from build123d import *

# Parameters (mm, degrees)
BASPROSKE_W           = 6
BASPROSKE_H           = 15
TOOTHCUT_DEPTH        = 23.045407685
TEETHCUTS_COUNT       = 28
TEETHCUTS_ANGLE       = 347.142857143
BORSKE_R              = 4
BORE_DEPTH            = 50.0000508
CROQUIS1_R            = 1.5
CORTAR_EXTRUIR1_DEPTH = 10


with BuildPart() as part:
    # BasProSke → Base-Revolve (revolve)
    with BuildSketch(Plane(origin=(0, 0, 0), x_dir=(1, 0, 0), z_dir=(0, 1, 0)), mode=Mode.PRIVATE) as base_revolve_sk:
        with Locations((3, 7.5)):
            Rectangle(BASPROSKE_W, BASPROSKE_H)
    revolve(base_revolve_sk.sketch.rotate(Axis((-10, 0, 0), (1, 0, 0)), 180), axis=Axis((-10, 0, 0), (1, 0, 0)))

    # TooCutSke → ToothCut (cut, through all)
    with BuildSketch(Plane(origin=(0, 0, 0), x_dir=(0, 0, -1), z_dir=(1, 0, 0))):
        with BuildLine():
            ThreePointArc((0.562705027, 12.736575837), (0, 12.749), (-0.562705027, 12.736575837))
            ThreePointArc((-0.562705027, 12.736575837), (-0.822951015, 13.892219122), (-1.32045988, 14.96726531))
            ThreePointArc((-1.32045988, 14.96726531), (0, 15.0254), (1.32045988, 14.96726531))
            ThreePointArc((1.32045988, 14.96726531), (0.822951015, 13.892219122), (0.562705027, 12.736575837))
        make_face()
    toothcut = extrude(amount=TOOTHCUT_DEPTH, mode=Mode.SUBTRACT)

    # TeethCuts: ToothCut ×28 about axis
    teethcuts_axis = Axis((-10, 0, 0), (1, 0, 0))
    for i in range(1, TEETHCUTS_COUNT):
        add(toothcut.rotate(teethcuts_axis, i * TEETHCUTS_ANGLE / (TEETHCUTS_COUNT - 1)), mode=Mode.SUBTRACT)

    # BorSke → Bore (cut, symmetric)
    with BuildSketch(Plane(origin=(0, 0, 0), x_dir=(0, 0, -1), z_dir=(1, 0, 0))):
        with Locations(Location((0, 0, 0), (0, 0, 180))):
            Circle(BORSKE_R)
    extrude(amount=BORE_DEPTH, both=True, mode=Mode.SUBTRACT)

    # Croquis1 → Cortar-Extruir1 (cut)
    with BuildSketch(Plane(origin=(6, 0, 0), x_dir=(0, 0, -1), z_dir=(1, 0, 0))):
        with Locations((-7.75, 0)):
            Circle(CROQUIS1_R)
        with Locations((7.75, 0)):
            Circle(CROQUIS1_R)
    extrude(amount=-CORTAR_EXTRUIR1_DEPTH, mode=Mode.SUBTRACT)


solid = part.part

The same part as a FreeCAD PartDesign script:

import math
import FreeCAD as App
import Part
import Sketcher

V = App.Vector
Q = App.Units.Quantity


def add_polygon(sketch, points):
    """Adds a closed chain of lines whose ends are joined by coincident constraints."""
    first, n = sketch.GeometryCount, len(points)
    for a, b in zip(points, points[1:] + points[:1]):
        sketch.addGeometry(Part.LineSegment(App.Vector(*a, 0), App.Vector(*b, 0)), False)
    for i in range(n):
        sketch.addConstraint(Sketcher.Constraint("Coincident", first + i, 2, first + (i + 1) % n, 1))

doc = App.newDocument("Part")
params = doc.addObject("Spreadsheet::Sheet", "Params")
for row, (alias, value) in enumerate([
    ("sketch1_width", "6 mm"),
    ("sketch1_height", "15 mm"),
    ("revolution_angle", "360 deg"),
    ("sketch2_radius", "5.6 mm"),
    ("sketch3_diameter", "8 mm"),
    ("pocket2_length", "100.000102 mm"),
    ("sketch4_diameter", "3 mm"),
    ("pocket3_length", "10 mm"),
], start=1):
    params.set(f"A{row}", alias)
    params.set(f"B{row}", "=" + value)
    params.setAlias(f"B{row}", alias)

body = doc.addObject("PartDesign::Body", "Body")

sketch1 = body.newObject("Sketcher::SketchObject", "Sketch")
sketch1.AttachmentSupport = (doc.getObject("XZ_Plane"), [""])
sketch1.MapMode = "FlatFace"
add_polygon(sketch1, [(0, -15), (0, 0), (6, 0), (6, -15)])
sketch1.addConstraint([
    Sketcher.Constraint("Vertical", 0),
    Sketcher.Constraint("Horizontal", 1),
    Sketcher.Constraint("Vertical", 2),
    Sketcher.Constraint("Horizontal", 3),
    Sketcher.Constraint("Coincident", 0, 2, -1, 1),
    Sketcher.Constraint("DistanceX", 1, 1, 1, 2, Q("6 mm")),
    Sketcher.Constraint("DistanceY", 0, 1, 0, 2, Q("15 mm")),
])
sketch1.setExpression("Constraints[9]", "Params.sketch1_width")
sketch1.setExpression("Constraints[10]", "Params.sketch1_height")
revolution = body.newObject("PartDesign::Revolution", "Revolution")
revolution.Profile = sketch1
revolution.ReferenceAxis = (sketch1, ["H_Axis"])
revolution.setExpression("Angle", "Params.revolution_angle")

sketch2 = body.newObject("Sketcher::SketchObject", "Sketch001")
sketch2.AttachmentSupport = (doc.getObject("YZ_Plane"), [""])
sketch2.MapMode = "FlatFace"
sketch2.addGeometry([
    Part.ArcOfCircle(Part.Circle(V(0, 0, 0), V(0, 0, 1), 12.7), math.radians(-2.53), math.radians(2.53)),
    Part.ArcOfCircle(Part.Circle(V(12.1, -6.1, 0), V(0, 0, 1), 5.6), math.radians(59), math.radians(83)),
    Part.ArcOfCircle(Part.Circle(V(0, 0, 0), V(0, 0, 1), 15), math.radians(-5.04), math.radians(5.04)),
    Part.ArcOfCircle(Part.Circle(V(12.1, 6.1, 0), V(0, 0, 1), 5.6), math.radians(-83), math.radians(-59)),
], False)
sketch2.addConstraint([
    Sketcher.Constraint("Coincident", 0, 1, 1, 2),
    Sketcher.Constraint("Coincident", 1, 1, 2, 1),
    Sketcher.Constraint("Coincident", 2, 2, 3, 2),
    Sketcher.Constraint("Coincident", 3, 1, 0, 2),
    Sketcher.Constraint("Coincident", 0, 3, -1, 1),
    Sketcher.Constraint("Coincident", 2, 3, -1, 1),
    Sketcher.Constraint("Equal", 1, 3),
    Sketcher.Constraint("Symmetric", 1, 3, 3, 3, -1),
    Sketcher.Constraint("Radius", 1, Q("5.6 mm")),
    Sketcher.Constraint("Radius", 0, Q("12.749 mm")),
    Sketcher.Constraint("Radius", 2, Q("15.0254 mm")),
    Sketcher.Constraint("DistanceX", -1, 1, 1, 3, Q("12.091012 mm")),
    Sketcher.Constraint("DistanceY", 1, 3, -1, 1, Q("6.12537 mm")),
])
sketch2.setExpression("Constraints[8]", "Params.sketch2_radius")
pocket1 = body.newObject("PartDesign::Pocket", "Pocket")
pocket1.Profile = sketch2
pocket1.Type = "ThroughAll"
pocket1.Reversed = True
doc.recompute()

polarpattern = body.newObject("PartDesign::PolarPattern", "PolarPattern")
polarpattern.Originals = [pocket1]
polarpattern.Axis = (doc.getObject("X_Axis"), [""])
polarpattern.Angle = 360
polarpattern.Occurrences = 28
body.Tip = polarpattern

sketch3 = body.newObject("Sketcher::SketchObject", "Sketch002")
sketch3.AttachmentSupport = (doc.getObject("YZ_Plane"), [""])
sketch3.MapMode = "FlatFace"
sketch3.addGeometry(Part.Circle(V(0, 0, 0), V(0, 0, 1), 4), False)
sketch3.addConstraint([
    Sketcher.Constraint("Coincident", 0, 3, -1, 1),
    Sketcher.Constraint("Diameter", 0, Q("8 mm")),
])
sketch3.setExpression("Constraints[1]", "Params.sketch3_diameter")
pocket2 = body.newObject("PartDesign::Pocket", "Pocket001")
pocket2.Profile = sketch3
pocket2.setExpression("Length", "Params.pocket2_length")
pocket2.Midplane = True

sketch4 = body.newObject("Sketcher::SketchObject", "Sketch003")
sketch4.AttachmentSupport = (doc.getObject("YZ_Plane"), [""])
sketch4.MapMode = "FlatFace"
sketch4.AttachmentOffset = App.Placement(V(0, 0, 6), App.Rotation())
sketch4.addGeometry([
    Part.Circle(V(0, 7.8, 0), V(0, 0, 1), 1.5),
    Part.Circle(V(0, -7.8, 0), V(0, 0, 1), 1.5),
], False)
sketch4.addConstraint([
    Sketcher.Constraint("Equal", 0, 1),
    Sketcher.Constraint("Symmetric", 0, 3, 1, 3, -1, 1),
    Sketcher.Constraint("PointOnObject", 0, 3, -2),
    Sketcher.Constraint("Diameter", 0, Q("3 mm")),
    Sketcher.Constraint("DistanceY", 1, 3, 0, 3, Q("15.5 mm")),
])
sketch4.setExpression("Constraints[3]", "Params.sketch4_diameter")
pocket3 = body.newObject("PartDesign::Pocket", "Pocket002")
pocket3.Profile = sketch4
pocket3.setExpression("Length", "Params.pocket3_length")

doc.recompute()
